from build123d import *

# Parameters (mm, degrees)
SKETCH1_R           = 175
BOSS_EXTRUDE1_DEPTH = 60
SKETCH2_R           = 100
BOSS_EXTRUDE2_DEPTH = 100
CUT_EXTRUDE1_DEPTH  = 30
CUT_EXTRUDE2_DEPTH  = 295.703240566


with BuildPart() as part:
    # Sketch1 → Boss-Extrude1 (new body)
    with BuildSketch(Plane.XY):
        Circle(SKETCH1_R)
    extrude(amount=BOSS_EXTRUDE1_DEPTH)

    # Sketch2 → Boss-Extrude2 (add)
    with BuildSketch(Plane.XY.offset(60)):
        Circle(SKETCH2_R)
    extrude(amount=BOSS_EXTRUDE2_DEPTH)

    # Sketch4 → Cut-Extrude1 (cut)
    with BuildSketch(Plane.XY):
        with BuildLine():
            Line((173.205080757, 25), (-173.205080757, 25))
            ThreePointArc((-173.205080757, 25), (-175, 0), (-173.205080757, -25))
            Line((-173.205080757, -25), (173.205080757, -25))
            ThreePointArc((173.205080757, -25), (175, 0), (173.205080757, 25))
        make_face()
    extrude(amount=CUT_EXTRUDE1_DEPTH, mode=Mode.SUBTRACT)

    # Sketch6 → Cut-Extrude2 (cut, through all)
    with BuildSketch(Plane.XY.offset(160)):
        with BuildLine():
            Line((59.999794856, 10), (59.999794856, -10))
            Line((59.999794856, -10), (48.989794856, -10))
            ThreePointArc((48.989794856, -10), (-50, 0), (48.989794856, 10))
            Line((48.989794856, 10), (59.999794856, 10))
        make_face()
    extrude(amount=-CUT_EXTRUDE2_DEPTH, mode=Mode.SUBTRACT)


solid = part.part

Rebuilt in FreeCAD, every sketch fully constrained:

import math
import FreeCAD as App
import Part
import Sketcher
Q = App.Units.Quantity

doc = App.newDocument("Part")
body = doc.addObject("PartDesign::Body", "Body")

sketch1 = body.newObject("Sketcher::SketchObject", "Sketch")
sketch1.AttachmentSupport = (doc.getObject("XY_Plane"), [""])
sketch1.MapMode = "FlatFace"
sketch1.addGeometry(Part.Circle(App.Vector(0, 0, 0), App.Vector(0, 0, 1), 175), False)
sketch1.addConstraint(Sketcher.Constraint("Coincident", 0, 3, -1, 1))
sketch1.addConstraint(Sketcher.Constraint("Diameter", 0, Q("350 mm")))
pad1 = body.newObject("PartDesign::Pad", "Pad")
pad1.Profile = sketch1
pad1.Length = 60

sketch2 = body.newObject("Sketcher::SketchObject", "Sketch001")
sketch2.AttachmentSupport = (doc.getObject("XY_Plane"), [""])
sketch2.MapMode = "FlatFace"
sketch2.AttachmentOffset = App.Placement(App.Vector(0, 0, 60), App.Rotation())
sketch2.addGeometry(Part.Circle(App.Vector(0, 0, 0), App.Vector(0, 0, 1), 100), False)
sketch2.addConstraint(Sketcher.Constraint("Coincident", 0, 3, -1, 1))
sketch2.addConstraint(Sketcher.Constraint("Diameter", 0, Q("200 mm")))
pad2 = body.newObject("PartDesign::Pad", "Pad001")
pad2.Profile = sketch2
pad2.Length = 100

sketch3 = body.newObject("Sketcher::SketchObject", "Sketch002")
sketch3.AttachmentSupport = (doc.getObject("XY_Plane"), [""])
sketch3.MapMode = "FlatFace"
sketch3.addGeometry(Part.LineSegment(App.Vector(173, 25, 0), App.Vector(-173, 25, 0)), False)
sketch3.addGeometry(Part.ArcOfCircle(Part.Circle(App.Vector(0, 0, 0), App.Vector(0, 0, 1), 175), math.radians(171.79), math.radians(188.21)), False)
sketch3.addGeometry(Part.LineSegment(App.Vector(-173, -25, 0), App.Vector(173, -25, 0)), False)
sketch3.addGeometry(Part.ArcOfCircle(Part.Circle(App.Vector(0, 0, 0), App.Vector(0, 0, 1), 175), math.radians(-8.21), math.radians(8.21)), False)
sketch3.addConstraint(Sketcher.Constraint("Coincident", 0, 2, 1, 1))
sketch3.addConstraint(Sketcher.Constraint("Coincident", 1, 2, 2, 1))
sketch3.addConstraint(Sketcher.Constraint("Coincident", 2, 2, 3, 1))
sketch3.addConstraint(Sketcher.Constraint("Coincident", 3, 2, 0, 1))
sketch3.addConstraint(Sketcher.Constraint("Horizontal", 0))
sketch3.addConstraint(Sketcher.Constraint("Horizontal", 2))
sketch3.addConstraint(Sketcher.Constraint("Coincident", 1, 3, -1, 1))
sketch3.addConstraint(Sketcher.Constraint("Coincident", 3, 3, -1, 1))
sketch3.addConstraint(Sketcher.Constraint("Equal", 1, 3))
sketch3.addConstraint(Sketcher.Constraint("Vertical", 0, 2, 1, 2))
sketch3.addConstraint(Sketcher.Constraint("Radius", 1, Q("175 mm")))
sketch3.addConstraint(Sketcher.Constraint("DistanceY", -1, 1, 0, 2, Q("25 mm")))
pocket1 = body.newObject("PartDesign::Pocket", "Pocket")
pocket1.Profile = sketch3
pocket1.Length = 30
pocket1.Reversed = True

sketch4 = body.newObject("Sketcher::SketchObject", "Sketch003")
sketch4.AttachmentSupport = (doc.getObject("XY_Plane"), [""])
sketch4.MapMode = "FlatFace"
sketch4.AttachmentOffset = App.Placement(App.Vector(0, 0, 160), App.Rotation())
sketch4.addGeometry(Part.LineSegment(App.Vector(60, -10, 0), App.Vector(60, 10, 0)), False)
sketch4.addGeometry(Part.LineSegment(App.Vector(60, 10, 0), App.Vector(49, 10, 0)), False)
sketch4.addGeometry(Part.ArcOfCircle(Part.Circle(App.Vector(0, 0, 0), App.Vector(0, 0, 1), 50), math.radians(12), math.radians(348)), False)
sketch4.addGeometry(Part.LineSegment(App.Vector(49, -10, 0), App.Vector(60, -10, 0)), False)
sketch4.addConstraint(Sketcher.Constraint("Coincident", 0, 2, 1, 1))
sketch4.addConstraint(Sketcher.Constraint("Coincident", 1, 2, 2, 1))
sketch4.addConstraint(Sketcher.Constraint("Coincident", 2, 2, 3, 1))
sketch4.addConstraint(Sketcher.Constraint("Coincident", 3, 2, 0, 1))
sketch4.addConstraint(Sketcher.Constraint("Vertical", 0))
sketch4.addConstraint(Sketcher.Constraint("Horizontal", 1))
sketch4.addConstraint(Sketcher.Constraint("Horizontal", 3))
sketch4.addConstraint(Sketcher.Constraint("Coincident", 2, 3, -1, 1))
sketch4.addConstraint(Sketcher.Constraint("Vertical", 1, 2, 2, 2))
sketch4.addConstraint(Sketcher.Constraint("Radius", 2, Q("50 mm")))
sketch4.addConstraint(Sketcher.Constraint("DistanceY", 0, 1, 0, 2, Q("20 mm")))
sketch4.addConstraint(Sketcher.Constraint("DistanceX", 1, 2, 1, 1, Q("11.01 mm")))
pocket2 = body.newObject("PartDesign::Pocket", "Pocket001")
pocket2.Profile = sketch4
pocket2.Type = "ThroughAll"

doc.recompute()
